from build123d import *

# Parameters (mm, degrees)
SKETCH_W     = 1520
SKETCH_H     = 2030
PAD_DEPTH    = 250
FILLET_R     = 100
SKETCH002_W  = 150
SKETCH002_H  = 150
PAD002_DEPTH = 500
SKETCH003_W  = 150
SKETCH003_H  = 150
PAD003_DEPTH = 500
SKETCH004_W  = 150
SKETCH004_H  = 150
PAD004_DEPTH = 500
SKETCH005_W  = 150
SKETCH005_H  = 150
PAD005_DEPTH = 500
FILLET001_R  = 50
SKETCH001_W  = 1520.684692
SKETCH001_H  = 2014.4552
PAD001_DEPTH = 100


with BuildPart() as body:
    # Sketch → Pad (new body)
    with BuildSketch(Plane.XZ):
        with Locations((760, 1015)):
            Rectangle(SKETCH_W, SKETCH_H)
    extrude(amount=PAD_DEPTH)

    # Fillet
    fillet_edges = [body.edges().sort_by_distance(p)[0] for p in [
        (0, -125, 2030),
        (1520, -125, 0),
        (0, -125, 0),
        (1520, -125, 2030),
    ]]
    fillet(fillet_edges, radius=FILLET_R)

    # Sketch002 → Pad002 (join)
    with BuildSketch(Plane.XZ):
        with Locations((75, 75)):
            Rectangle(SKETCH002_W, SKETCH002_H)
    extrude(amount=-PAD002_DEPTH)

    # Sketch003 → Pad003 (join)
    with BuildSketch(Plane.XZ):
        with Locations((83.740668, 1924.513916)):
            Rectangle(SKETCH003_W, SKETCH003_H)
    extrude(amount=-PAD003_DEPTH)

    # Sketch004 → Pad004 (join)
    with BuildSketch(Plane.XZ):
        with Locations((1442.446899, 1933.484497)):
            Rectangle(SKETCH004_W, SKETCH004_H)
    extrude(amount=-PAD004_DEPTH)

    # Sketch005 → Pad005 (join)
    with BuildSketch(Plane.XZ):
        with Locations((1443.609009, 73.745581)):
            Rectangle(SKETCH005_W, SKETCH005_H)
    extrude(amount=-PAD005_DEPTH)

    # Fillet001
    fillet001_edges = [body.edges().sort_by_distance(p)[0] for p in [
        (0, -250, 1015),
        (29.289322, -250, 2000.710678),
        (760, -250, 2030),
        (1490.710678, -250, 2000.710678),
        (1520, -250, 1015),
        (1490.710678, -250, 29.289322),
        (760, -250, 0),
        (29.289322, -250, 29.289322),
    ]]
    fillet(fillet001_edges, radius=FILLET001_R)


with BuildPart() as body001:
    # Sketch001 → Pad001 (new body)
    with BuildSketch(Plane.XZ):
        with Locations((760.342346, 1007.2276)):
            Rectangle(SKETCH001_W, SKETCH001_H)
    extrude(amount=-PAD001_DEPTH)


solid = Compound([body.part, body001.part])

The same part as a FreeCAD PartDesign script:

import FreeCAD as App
import Part
import Sketcher

V = App.Vector
Q = App.Units.Quantity


def edges_at(feature, points):
    """Names of the edges that pass closest to the given points."""
    edges = feature.Shape.Edges
    near = lambda p: min(range(len(edges)), key=lambda i: edges[i].distToShape(Part.Vertex(*p))[0])
    return sorted({f"Edge{near(p) + 1}" for p in points})


def add_polygon(sketch, points):
    """Adds a closed chain of lines whose ends are joined by coincident constraints."""
    first, n = sketch.GeometryCount, len(points)
    for a, b in zip(points, points[1:] + points[:1]):
        sketch.addGeometry(Part.LineSegment(App.Vector(*a, 0), App.Vector(*b, 0)), False)
    for i in range(n):
        sketch.addConstraint(Sketcher.Constraint("Coincident", first + i, 2, first + (i + 1) % n, 1))

doc = App.newDocument("Part")
body = doc.addObject("PartDesign::Body", "Body")

sketch1 = body.newObject("Sketcher::SketchObject", "Sketch")
sketch1.AttachmentSupport = (doc.getObject("XZ_Plane"), [""])
sketch1.MapMode = "FlatFace"
add_polygon(sketch1, [(0, 2030), (0, 0), (1520, 0), (1520, 2030)])
sketch1.addConstraint([
    Sketcher.Constraint("Vertical", 0),
    Sketcher.Constraint("Horizontal", 1),
    Sketcher.Constraint("Vertical", 2),
    Sketcher.Constraint("Horizontal", 3),
    Sketcher.Constraint("Coincident", 0, 2, -1, 1),
    Sketcher.Constraint("DistanceX", 1, 1, 1, 2, Q("1520 mm")),
    Sketcher.Constraint("DistanceY", 0, 2, 0, 1, Q("2030 mm")),
])
pad1 = body.newObject("PartDesign::Pad", "Pad")
pad1.Profile = sketch1
pad1.Length = 250
doc.recompute()

fillet = body.newObject("PartDesign::Fillet", "Fillet")
fillet.Base = (pad1, edges_at(pad1, [
    (0, -125, 2030),
    (1520, -125, 0),
    (0, -125, 0),
    (1520, -125, 2030),
]))
fillet.Radius = 100

sketch2 = body.newObject("Sketcher::SketchObject", "Sketch001")
sketch2.AttachmentSupport = (doc.getObject("XZ_Plane"), [""])
sketch2.MapMode = "FlatFace"
add_polygon(sketch2, [(0, 150), (0, 0), (150, 0), (150, 150)])
sketch2.addConstraint([
    Sketcher.Constraint("Vertical", 0),
    Sketcher.Constraint("Horizontal", 1),
    Sketcher.Constraint("Vertical", 2),
    Sketcher.Constraint("Horizontal", 3),
    Sketcher.Constraint("Coincident", 0, 2, -1, 1),
    Sketcher.Constraint("Equal", 3, 0),
    Sketcher.Constraint("DistanceX", 1, 1, 1, 2, Q("150 mm")),
])
pad2 = body.newObject("PartDesign::Pad", "Pad001")
pad2.Profile = sketch2
pad2.Length = 500
pad2.Reversed = True

sketch3 = body.newObject("Sketcher::SketchObject", "Sketch002")
sketch3.AttachmentSupport = (doc.getObject("XZ_Plane"), [""])
sketch3.MapMode = "FlatFace"
add_polygon(sketch3, [(9, 2000), (9, 1850), (159, 1850), (159, 2000)])
sketch3.addConstraint([
    Sketcher.Constraint("Vertical", 0),
    Sketcher.Constraint("Horizontal", 1),
    Sketcher.Constraint("Vertical", 2),
    Sketcher.Constraint("Horizontal", 3),
    Sketcher.Constraint("Equal", 3, 0),
    Sketcher.Constraint("DistanceX", 1, 1, 1, 2, Q("150 mm")),
    Sketcher.Constraint("DistanceX", -1, 1, 1, 2, Q("158.740668 mm")),
    Sketcher.Constraint("DistanceY", -1, 1, 0, 2, Q("1849.513916 mm")),
])
pad3 = body.newObject("PartDesign::Pad", "Pad002")
pad3.Profile = sketch3
pad3.Length = 500
pad3.Reversed = True

sketch4 = body.newObject("Sketcher::SketchObject", "Sketch003")
sketch4.AttachmentSupport = (doc.getObject("XZ_Plane"), [""])
sketch4.MapMode = "FlatFace"
add_polygon(sketch4, [(1367, 2008), (1367, 1858), (1517, 1858), (1517, 2008)])
sketch4.addConstraint([
    Sketcher.Constraint("Vertical", 0),
    Sketcher.Constraint("Horizontal", 1),
    Sketcher.Constraint("Vertical", 2),
    Sketcher.Constraint("Horizontal", 3),
    Sketcher.Constraint("Equal", 3, 0),
    Sketcher.Constraint("DistanceX", 1, 1, 1, 2, Q("150 mm")),
    Sketcher.Constraint("DistanceX", -1, 1, 0, 2, Q("1367.446899 mm")),
    Sketcher.Constraint("DistanceY", -1, 1, 0, 2, Q("1858.484497 mm")),
])
pad4 = body.newObject("PartDesign::Pad", "Pad003")
pad4.Profile = sketch4
pad4.Length = 500
pad4.Reversed = True

sketch5 = body.newObject("Sketcher::SketchObject", "Sketch004")
sketch5.AttachmentSupport = (doc.getObject("XZ_Plane"), [""])
sketch5.MapMode = "FlatFace"
add_polygon(sketch5, [(1369, 149), (1369, -1), (1519, -1), (1519, 149)])
sketch5.addConstraint([
    Sketcher.Constraint("Vertical", 0),
    Sketcher.Constraint("Horizontal", 1),
    Sketcher.Constraint("Vertical", 2),
    Sketcher.Constraint("Horizontal", 3),
    Sketcher.Constraint("Equal", 3, 0),
    Sketcher.Constraint("DistanceX", 1, 1, 1, 2, Q("150 mm")),
    Sketcher.Constraint("DistanceX", -1, 1, 0, 2, Q("1368.609009 mm")),
    Sketcher.Constraint("DistanceY", 0, 2, -1, 1, Q("1.254419 mm")),
])
pad5 = body.newObject("PartDesign::Pad", "Pad004")
pad5.Profile = sketch5
pad5.Length = 500
pad5.Reversed = True
doc.recompute()

fillet2 = body.newObject("PartDesign::Fillet", "Fillet001")
fillet2.Base = (pad5, edges_at(pad5, [
    (0, -250, 1015),
    (29.289, -250, 2000.711),
    (760, -250, 2030),
    (1490.711, -250, 2000.711),
    (1520, -250, 1015),
    (1490.711, -250, 29.289),
    (760, -250, 0),
    (29.289, -250, 29.289),
]))
fillet2.Radius = 50
body2 = doc.addObject("PartDesign::Body", "Body001")

sketch6 = body2.newObject("Sketcher::SketchObject", "Sketch005")
sketch6.AttachmentSupport = (doc.getObject("XZ_Plane001"), [""])
sketch6.MapMode = "FlatFace"
add_polygon(sketch6, [(0, 2014), (0, 0), (1521, 0), (1521, 2014)])
sketch6.addConstraint([
    Sketcher.Constraint("Vertical", 0),
    Sketcher.Constraint("Horizontal", 1),
    Sketcher.Constraint("Vertical", 2),
    Sketcher.Constraint("Horizontal", 3),
    Sketcher.Constraint("Coincident", 0, 2, -1, 1),
    Sketcher.Constraint("DistanceY", 0, 2, 0, 1, Q("2014.4552 mm")),
    Sketcher.Constraint("DistanceX", 1, 1, 1, 2, Q("1520.684692 mm")),
])
pad6 = body2.newObject("PartDesign::Pad", "Pad005")
pad6.Profile = sketch6
pad6.Length = 100
pad6.Reversed = True

doc.recompute()
